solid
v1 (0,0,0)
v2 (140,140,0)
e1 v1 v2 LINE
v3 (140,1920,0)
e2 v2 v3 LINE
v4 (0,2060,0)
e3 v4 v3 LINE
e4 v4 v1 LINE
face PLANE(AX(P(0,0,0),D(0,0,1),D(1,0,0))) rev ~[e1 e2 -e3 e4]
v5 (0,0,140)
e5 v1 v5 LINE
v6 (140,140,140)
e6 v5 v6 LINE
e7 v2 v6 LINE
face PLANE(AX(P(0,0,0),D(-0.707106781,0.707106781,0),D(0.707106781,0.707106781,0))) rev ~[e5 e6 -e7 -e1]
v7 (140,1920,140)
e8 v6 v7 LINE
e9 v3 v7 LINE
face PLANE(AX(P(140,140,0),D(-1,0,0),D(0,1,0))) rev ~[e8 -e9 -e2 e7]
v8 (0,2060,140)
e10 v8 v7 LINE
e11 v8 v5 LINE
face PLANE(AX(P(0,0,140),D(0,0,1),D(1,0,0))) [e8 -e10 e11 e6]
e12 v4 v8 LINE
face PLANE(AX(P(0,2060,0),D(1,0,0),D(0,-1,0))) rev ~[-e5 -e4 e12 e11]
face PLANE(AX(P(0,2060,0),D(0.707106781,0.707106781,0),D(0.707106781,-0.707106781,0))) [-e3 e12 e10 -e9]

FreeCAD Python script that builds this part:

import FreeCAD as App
import Part
import Sketcher
from FreeCAD import Vector
Q = App.Units.Quantity


def add_polygon(sketch, points):
    """Adds a closed chain of lines whose ends are joined by coincident constraints."""
    first, n = sketch.GeometryCount, len(points)
    for a, b in zip(points, points[1:] + points[:1]):
        sketch.addGeometry(Part.LineSegment(App.Vector(*a, 0), App.Vector(*b, 0)), False)
    for i in range(n):
        sketch.addConstraint(Sketcher.Constraint("Coincident", first + i, 2, first + (i + 1) % n, 1))

doc = App.newDocument("Part")
body = doc.addObject("PartDesign::Body", "Body")

# Sketch on XY plane
sketch1 = body.newObject("Sketcher::SketchObject", "Sketch")
sketch1.AttachmentSupport = (doc.getObject("XY_Plane"), [""])
sketch1.MapMode = "FlatFace"
add_polygon(sketch1, [(0, 0), (140, 140), (140, 1920), (0, 2060)])  # lines 0-3
sketch1.addConstraint([
    Sketcher.Constraint("Vertical", 1),
    Sketcher.Constraint("Vertical", 3),
    Sketcher.Constraint("Coincident", 3, 2, -1, 1),
    Sketcher.Constraint("Perpendicular", 0, 2),
    Sketcher.Constraint("Equal", 0, 2),
    Sketcher.Constraint("DistanceY", 1, 1, 1, 2, Q("1780 mm")),
    Sketcher.Constraint("DistanceY", 3, 2, 3, 1, Q("2060 mm")),
])
pad1 = body.newObject("PartDesign::Pad", "Pad")
pad1.Profile = sketch1
pad1.Length = 140

doc.recompute()
